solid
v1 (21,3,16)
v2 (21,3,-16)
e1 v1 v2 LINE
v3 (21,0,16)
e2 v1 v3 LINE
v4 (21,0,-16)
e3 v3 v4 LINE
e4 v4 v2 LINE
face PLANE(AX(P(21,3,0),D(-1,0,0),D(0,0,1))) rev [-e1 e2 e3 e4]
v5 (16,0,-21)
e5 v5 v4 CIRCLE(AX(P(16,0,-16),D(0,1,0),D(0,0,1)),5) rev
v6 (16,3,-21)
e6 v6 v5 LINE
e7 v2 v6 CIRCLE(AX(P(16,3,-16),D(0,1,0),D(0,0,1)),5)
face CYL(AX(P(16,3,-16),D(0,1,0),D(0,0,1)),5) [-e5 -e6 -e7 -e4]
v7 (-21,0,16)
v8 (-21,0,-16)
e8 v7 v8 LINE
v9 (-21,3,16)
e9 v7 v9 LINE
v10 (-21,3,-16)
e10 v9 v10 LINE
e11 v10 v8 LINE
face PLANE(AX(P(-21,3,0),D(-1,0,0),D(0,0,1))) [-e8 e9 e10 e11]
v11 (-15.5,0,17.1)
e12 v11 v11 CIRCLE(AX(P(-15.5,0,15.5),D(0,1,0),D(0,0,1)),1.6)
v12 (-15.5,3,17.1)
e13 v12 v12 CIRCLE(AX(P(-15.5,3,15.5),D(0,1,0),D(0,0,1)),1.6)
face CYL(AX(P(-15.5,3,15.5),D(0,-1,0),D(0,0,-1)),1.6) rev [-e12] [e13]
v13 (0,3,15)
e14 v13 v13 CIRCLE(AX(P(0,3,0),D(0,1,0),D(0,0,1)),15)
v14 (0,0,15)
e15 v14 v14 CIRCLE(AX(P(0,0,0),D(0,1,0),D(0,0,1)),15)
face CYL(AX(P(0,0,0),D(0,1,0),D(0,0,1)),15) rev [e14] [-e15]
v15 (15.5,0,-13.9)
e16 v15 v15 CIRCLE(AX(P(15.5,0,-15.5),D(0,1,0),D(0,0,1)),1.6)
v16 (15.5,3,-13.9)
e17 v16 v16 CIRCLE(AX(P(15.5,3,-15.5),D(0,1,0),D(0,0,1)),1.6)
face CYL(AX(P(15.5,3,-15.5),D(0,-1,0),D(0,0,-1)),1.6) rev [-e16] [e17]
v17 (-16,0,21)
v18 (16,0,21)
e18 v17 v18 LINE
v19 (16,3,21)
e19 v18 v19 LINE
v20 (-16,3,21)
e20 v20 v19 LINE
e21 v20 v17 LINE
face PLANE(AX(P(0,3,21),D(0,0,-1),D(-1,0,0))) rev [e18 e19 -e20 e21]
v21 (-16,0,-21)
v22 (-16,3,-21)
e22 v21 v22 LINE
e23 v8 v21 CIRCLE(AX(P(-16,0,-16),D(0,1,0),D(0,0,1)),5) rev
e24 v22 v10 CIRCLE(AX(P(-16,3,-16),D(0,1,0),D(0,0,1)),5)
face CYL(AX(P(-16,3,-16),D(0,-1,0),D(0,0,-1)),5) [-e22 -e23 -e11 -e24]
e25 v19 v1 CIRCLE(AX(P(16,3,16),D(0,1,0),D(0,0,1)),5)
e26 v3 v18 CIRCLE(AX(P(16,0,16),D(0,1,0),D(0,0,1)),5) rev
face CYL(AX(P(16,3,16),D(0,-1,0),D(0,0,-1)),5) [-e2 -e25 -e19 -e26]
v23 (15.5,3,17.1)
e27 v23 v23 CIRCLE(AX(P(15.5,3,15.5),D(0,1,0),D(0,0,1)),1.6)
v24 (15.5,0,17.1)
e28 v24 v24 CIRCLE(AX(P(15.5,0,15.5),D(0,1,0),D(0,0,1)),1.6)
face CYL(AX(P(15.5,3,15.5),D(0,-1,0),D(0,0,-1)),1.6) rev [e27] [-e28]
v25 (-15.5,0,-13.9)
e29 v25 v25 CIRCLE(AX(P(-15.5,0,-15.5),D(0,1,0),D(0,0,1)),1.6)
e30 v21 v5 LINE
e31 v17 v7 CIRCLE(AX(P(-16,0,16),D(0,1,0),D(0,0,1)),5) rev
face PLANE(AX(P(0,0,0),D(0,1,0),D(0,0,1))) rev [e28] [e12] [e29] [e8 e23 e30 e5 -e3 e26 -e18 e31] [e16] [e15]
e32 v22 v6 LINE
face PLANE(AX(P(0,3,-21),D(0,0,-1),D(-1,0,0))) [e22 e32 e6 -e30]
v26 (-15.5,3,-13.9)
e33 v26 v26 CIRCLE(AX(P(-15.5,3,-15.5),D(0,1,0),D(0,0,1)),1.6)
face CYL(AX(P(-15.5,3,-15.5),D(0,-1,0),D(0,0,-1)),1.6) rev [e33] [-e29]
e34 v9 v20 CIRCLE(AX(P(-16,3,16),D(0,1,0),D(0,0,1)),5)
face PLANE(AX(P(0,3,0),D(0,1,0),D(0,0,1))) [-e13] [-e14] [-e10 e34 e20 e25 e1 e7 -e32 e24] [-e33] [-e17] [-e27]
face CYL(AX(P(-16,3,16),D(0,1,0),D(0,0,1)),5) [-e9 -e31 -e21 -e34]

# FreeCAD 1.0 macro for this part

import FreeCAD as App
import Part
import Sketcher

V = App.Vector
Q = App.Units.Quantity


def edges_at(feature, points):
    """Names of the edges that pass closest to the given points."""
    edges = feature.Shape.Edges
    near = lambda p: min(range(len(edges)), key=lambda i: edges[i].distToShape(Part.Vertex(*p))[0])
    return sorted({f"Edge{near(p) + 1}" for p in points})


def add_polygon(sketch, points):
    """Adds a closed chain of lines whose ends are joined by coincident constraints."""
    first, n = sketch.GeometryCount, len(points)
    for a, b in zip(points, points[1:] + points[:1]):
        sketch.addGeometry(Part.LineSegment(App.Vector(*a, 0), App.Vector(*b, 0)), False)
    for i in range(n):
        sketch.addConstraint(Sketcher.Constraint("Coincident", first + i, 2, first + (i + 1) % n, 1))

doc = App.newDocument("Part")
params = doc.addObject("Spreadsheet::Sheet", "Params")
for row, (alias, value) in enumerate([
    ("sketch1_diameter", "22 mm"),
    ("sketch1_diameter2", "3.2 mm"),
    ("sketch1_width", "42 mm"),
    ("pad1_length", "3 mm"),
    ("sketch2_diameter", "30 mm"),
    ("fillet_radius", "5 mm"),
], start=1):
    params.set(f"A{row}", alias)
    params.set(f"B{row}", "=" + value)
    params.setAlias(f"B{row}", alias)

body = doc.addObject("PartDesign::Body", "Body")

# Sketch on XZ plane
sketch1 = body.newObject("Sketcher::SketchObject", "Sketch")
sketch1.AttachmentSupport = (doc.getObject("XZ_Plane"), [""])
sketch1.MapMode = "FlatFace"
add_polygon(sketch1, [(-21, -21), (-21, 21), (21, 21), (21, -21)])  # lines 0-3
sketch1.addGeometry(Part.Circle(V(-15.5, 15.5, 0), V(0, 0, 1), 1.6), False)  # 4
sketch1.addGeometry(Part.Circle(V(15.5, 15.5, 0), V(0, 0, 1), 1.6), False)  # 5
sketch1.addGeometry(Part.Circle(V(0.1, 0.1, 0), V(0, 0, 1), 11), False)  # 6
sketch1.addGeometry(Part.Circle(V(-15.5, -15.5, 0), V(0, 0, 1), 1.6), False)  # 7
sketch1.addGeometry(Part.Circle(V(15.5, -15.5, 0), V(0, 0, 1), 1.6), False)  # 8
sketch1.addConstraint(Sketcher.Constraint("Vertical", 0))
sketch1.addConstraint(Sketcher.Constraint("Horizontal", 1))
sketch1.addConstraint(Sketcher.Constraint("Vertical", 2))
sketch1.addConstraint(Sketcher.Constraint("Horizontal", 3))
sketch1.addConstraint(Sketcher.Constraint("Equal", 4, 5))
sketch1.addConstraint(Sketcher.Constraint("Equal", 5, 7))
sketch1.addConstraint(Sketcher.Constraint("Equal", 7, 8))
sketch1.addConstraint(Sketcher.Constraint("Symmetric", 5, 3, 7, 3, -1, 1))
sketch1.addConstraint(Sketcher.Constraint("Symmetric", 4, 3, 8, 3, -1, 1))
sketch1.addConstraint(Sketcher.Constraint("Symmetric", 0, 2, 2, 2, -1, 1))
sketch1.addConstraint(Sketcher.Constraint("Symmetric", 4, 3, 5, 3, -2))
sketch1.addConstraint(Sketcher.Constraint("Equal", 3, 0))
sketch1.addConstraint(Sketcher.Constraint("Diameter", 6, Q("22 mm")))
sketch1.addConstraint(Sketcher.Constraint("Diameter", 4, Q("3.2 mm")))
sketch1.addConstraint(Sketcher.Constraint("DistanceX", 1, 1, 1, 2, Q("42 mm")))
sketch1.addConstraint(Sketcher.Constraint("DistanceX", 4, 3, 5, 3, Q("31 mm")))
sketch1.addConstraint(Sketcher.Constraint("DistanceY", 7, 3, 4, 3, Q("31 mm")))
sketch1.addConstraint(Sketcher.Constraint("DistanceX", -1, 1, 6, 3, Q("0.145011 mm")))
sketch1.addConstraint(Sketcher.Constraint("DistanceY", -1, 1, 6, 3, Q("0.145011 mm")))
sketch1.setExpression("Constraints[16]", "Params.sketch1_diameter")
sketch1.setExpression("Constraints[17]", "Params.sketch1_diameter2")
sketch1.setExpression("Constraints[18]", "Params.sketch1_width")
pad1 = body.newObject("PartDesign::Pad", "Pad")
pad1.Profile = sketch1
pad1.setExpression("Length", "Params.pad1_length")
pad1.Reversed = True

# Sketch on XZ plane
sketch2 = body.newObject("Sketcher::SketchObject", "Sketch001")
sketch2.AttachmentSupport = (doc.getObject("XZ_Plane"), [""])
sketch2.MapMode = "FlatFace"
sketch2.AttachmentOffset = App.Placement(V(0, 0, -3), App.Rotation())
sketch2.addGeometry(Part.Circle(V(0, 0, 0), V(0, 0, 1), 15), False)
sketch2.addConstraint(Sketcher.Constraint("Coincident", 0, 3, -1, 1))
sketch2.addConstraint(Sketcher.Constraint("Diameter", 0, Q("30 mm")))
sketch2.setExpression("Constraints[1]", "Params.sketch2_diameter")
pocket1 = body.newObject("PartDesign::Pocket", "Pocket")
pocket1.Profile = sketch2
pocket1.Type = "ThroughAll"
pocket1.Reversed = True
doc.recompute()

fillet = body.newObject("PartDesign::Fillet", "Fillet")
fillet.Base = (pocket1, edges_at(pocket1, [
    (-21, 1.5, 21),
    (-21, 1.5, -21),
    (21, 1.5, -21),
    (21, 1.5, 21),
]))
fillet.setExpression("Radius", "Params.fillet_radius")

doc.recompute()
